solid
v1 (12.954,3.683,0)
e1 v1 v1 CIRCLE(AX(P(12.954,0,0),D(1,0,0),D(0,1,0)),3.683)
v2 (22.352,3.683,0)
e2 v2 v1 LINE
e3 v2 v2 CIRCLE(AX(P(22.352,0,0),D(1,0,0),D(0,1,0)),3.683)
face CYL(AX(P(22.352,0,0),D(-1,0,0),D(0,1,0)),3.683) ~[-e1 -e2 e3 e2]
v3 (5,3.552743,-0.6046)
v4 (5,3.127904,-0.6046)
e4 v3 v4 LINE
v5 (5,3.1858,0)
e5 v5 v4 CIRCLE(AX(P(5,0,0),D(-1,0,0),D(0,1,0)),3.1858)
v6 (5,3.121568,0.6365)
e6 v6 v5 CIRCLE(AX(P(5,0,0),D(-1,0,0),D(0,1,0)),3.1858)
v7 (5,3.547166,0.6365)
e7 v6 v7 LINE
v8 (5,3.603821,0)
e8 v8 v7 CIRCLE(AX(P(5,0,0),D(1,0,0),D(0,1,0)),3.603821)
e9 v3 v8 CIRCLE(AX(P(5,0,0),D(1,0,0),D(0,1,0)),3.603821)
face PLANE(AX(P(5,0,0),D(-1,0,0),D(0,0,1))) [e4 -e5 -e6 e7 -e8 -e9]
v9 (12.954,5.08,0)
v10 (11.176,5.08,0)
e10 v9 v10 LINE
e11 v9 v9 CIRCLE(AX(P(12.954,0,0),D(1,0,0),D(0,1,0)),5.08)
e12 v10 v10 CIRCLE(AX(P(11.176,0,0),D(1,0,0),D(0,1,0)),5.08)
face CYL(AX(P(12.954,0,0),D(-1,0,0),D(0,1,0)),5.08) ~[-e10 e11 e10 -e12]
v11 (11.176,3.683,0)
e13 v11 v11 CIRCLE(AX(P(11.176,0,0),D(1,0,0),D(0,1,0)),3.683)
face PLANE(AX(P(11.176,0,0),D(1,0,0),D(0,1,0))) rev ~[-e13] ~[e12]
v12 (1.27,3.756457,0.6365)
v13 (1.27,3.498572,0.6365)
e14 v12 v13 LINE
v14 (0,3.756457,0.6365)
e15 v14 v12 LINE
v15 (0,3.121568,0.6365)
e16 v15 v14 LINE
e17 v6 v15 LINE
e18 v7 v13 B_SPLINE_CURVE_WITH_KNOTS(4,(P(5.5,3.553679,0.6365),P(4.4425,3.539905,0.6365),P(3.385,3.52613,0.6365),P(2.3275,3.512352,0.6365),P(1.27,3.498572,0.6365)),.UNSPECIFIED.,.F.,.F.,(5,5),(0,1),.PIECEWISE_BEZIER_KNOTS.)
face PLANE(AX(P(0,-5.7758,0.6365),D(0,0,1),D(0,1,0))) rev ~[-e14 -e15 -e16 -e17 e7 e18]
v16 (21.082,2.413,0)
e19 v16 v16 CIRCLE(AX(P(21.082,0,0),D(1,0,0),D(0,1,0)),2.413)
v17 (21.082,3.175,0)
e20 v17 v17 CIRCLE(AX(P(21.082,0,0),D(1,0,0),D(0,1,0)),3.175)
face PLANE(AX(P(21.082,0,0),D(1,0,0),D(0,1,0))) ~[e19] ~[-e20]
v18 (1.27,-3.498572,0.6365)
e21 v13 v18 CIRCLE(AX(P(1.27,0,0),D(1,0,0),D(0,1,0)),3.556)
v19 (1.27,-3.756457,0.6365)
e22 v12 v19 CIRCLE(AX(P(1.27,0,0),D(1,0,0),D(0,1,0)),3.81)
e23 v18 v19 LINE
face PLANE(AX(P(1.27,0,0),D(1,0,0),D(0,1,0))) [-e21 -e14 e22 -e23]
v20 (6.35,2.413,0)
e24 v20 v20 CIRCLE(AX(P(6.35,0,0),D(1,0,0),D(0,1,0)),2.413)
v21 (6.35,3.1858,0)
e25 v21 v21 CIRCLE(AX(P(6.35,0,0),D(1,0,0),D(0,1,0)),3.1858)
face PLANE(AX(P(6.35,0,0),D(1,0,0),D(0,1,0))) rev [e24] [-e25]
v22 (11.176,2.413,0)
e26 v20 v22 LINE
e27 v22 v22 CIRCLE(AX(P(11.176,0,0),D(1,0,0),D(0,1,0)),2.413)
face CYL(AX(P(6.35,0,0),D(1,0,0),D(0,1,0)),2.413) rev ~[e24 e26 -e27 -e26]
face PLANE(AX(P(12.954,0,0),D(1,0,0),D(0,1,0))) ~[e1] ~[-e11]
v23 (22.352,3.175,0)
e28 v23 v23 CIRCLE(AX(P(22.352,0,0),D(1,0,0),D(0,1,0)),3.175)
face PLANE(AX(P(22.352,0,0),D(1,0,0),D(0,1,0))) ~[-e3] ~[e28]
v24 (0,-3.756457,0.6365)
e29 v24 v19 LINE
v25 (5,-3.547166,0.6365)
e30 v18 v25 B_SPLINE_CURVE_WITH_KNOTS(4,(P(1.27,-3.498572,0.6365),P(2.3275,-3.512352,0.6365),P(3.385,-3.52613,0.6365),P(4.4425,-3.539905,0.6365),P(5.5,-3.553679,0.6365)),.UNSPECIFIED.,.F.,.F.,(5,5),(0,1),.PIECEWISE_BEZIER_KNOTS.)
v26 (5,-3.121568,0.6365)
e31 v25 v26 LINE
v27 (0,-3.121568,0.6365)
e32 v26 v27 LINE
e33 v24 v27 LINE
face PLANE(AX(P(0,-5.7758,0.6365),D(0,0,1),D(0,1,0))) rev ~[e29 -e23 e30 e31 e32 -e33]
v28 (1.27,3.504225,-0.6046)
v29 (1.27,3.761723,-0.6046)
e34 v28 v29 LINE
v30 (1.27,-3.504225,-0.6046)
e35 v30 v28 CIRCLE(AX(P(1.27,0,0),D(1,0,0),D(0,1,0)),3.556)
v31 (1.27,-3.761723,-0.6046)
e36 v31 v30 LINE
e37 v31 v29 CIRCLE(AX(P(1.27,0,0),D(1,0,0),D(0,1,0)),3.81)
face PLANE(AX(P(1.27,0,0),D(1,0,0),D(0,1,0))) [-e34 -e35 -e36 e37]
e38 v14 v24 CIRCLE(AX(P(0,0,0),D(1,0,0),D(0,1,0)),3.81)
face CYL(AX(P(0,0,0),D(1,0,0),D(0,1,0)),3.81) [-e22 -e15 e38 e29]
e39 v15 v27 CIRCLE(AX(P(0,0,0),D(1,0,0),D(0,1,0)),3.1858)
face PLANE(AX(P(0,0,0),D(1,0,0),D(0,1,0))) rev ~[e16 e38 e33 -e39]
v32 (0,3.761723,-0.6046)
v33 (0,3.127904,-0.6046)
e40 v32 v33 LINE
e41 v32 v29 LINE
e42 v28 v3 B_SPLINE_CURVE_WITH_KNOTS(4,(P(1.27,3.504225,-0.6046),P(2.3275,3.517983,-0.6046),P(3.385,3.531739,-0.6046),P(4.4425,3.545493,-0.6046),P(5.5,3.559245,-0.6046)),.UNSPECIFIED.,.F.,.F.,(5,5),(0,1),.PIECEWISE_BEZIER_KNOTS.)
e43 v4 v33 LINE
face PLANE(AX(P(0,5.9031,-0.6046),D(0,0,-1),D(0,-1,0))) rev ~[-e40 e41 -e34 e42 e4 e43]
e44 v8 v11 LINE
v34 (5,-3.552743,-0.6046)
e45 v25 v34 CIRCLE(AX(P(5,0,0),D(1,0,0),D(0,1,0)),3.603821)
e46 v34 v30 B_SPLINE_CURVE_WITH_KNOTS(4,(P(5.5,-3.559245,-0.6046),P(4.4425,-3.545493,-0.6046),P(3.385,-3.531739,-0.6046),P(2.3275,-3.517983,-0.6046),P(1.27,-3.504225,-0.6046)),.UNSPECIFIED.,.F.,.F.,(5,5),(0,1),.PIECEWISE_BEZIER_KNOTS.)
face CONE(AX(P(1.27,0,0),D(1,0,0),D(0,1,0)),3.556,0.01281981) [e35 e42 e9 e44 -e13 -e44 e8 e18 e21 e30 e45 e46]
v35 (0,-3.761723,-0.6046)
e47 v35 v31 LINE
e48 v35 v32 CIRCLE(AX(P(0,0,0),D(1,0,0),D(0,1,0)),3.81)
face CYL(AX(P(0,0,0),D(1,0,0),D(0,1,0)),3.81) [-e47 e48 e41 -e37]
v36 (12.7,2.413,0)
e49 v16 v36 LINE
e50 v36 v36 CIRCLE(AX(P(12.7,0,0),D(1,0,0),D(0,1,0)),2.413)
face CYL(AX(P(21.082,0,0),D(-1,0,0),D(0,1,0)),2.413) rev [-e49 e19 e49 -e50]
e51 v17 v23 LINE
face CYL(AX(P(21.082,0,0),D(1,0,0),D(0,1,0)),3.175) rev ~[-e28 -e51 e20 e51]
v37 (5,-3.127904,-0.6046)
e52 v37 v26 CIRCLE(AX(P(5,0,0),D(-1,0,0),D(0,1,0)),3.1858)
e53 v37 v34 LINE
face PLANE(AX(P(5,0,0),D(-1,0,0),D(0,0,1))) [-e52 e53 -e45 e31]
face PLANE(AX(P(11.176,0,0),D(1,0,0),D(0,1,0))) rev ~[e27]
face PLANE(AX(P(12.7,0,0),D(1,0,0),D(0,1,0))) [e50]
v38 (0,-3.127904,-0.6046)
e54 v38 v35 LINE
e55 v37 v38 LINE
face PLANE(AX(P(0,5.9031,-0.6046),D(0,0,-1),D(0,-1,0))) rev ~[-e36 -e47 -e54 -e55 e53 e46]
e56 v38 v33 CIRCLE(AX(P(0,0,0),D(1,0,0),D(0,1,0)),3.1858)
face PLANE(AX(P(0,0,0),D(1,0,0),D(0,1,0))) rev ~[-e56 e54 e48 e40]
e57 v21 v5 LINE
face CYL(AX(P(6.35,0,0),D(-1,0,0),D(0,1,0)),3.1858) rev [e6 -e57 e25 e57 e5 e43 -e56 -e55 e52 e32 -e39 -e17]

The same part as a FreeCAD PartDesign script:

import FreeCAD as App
import Part
import Sketcher
from FreeCAD import Vector
Q = App.Units.Quantity

doc = App.newDocument("Part")
body = doc.addObject("PartDesign::Body", "Body")

sketch1 = body.newObject("Sketcher::SketchObject", "Sketch")
sketch1.AttachmentSupport = (doc.getObject("XY_Plane"), [""])
sketch1.MapMode = "FlatFace"
sketch1.addGeometry([
    Part.LineSegment(Vector(1.27, 3.81, 0), Vector(0, 3.81, 0)),
    Part.LineSegment(Vector(0, 3.81, 0), Vector(0, 3.19, 0)),
    Part.LineSegment(Vector(0, 3.19, 0), Vector(6.35, 3.19, 0)),
    Part.LineSegment(Vector(6.35, 3.19, 0), Vector(6.35, 2.41, 0)),
    Part.LineSegment(Vector(6.35, 2.41, 0), Vector(11.18, 2.41, 0)),
    Part.LineSegment(Vector(11.18, 2.41, 0), Vector(11.18, 0, 0)),
    Part.LineSegment(Vector(11.18, 0, 0), Vector(12.7, 0, 0)),
    Part.LineSegment(Vector(12.7, 0, 0), Vector(12.7, 2.41, 0)),
    Part.LineSegment(Vector(12.7, 2.41, 0), Vector(21.08, 2.41, 0)),
    Part.LineSegment(Vector(21.08, 2.41, 0), Vector(21.08, 3.17, 0)),
    Part.LineSegment(Vector(21.08, 3.17, 0), Vector(22.35, 3.17, 0)),
    Part.LineSegment(Vector(22.35, 3.17, 0), Vector(22.35, 3.68, 0)),
    Part.LineSegment(Vector(22.35, 3.68, 0), Vector(12.95, 3.68, 0)),
    Part.LineSegment(Vector(12.95, 3.68, 0), Vector(12.95, 5.08, 0)),
    Part.LineSegment(Vector(12.95, 5.08, 0), Vector(11.18, 5.08, 0)),
    Part.LineSegment(Vector(11.18, 5.08, 0), Vector(11.18, 3.68, 0)),
    Part.LineSegment(Vector(11.18, 3.68, 0), Vector(1.27, 3.56, 0)),
    Part.LineSegment(Vector(1.27, 3.56, 0), Vector(1.27, 3.81, 0)),
], False)
sketch1.addConstraint([
    Sketcher.Constraint("Coincident", 0, 2, 1, 1),
    Sketcher.Constraint("Coincident", 1, 2, 2, 1),
    Sketcher.Constraint("Coincident", 2, 2, 3, 1),
    Sketcher.Constraint("Coincident", 3, 2, 4, 1),
    Sketcher.Constraint("Coincident", 4, 2, 5, 1),
    Sketcher.Constraint("Coincident", 5, 2, 6, 1),
    Sketcher.Constraint("Coincident", 6, 2, 7, 1),
    Sketcher.Constraint("Coincident", 7, 2, 8, 1),
    Sketcher.Constraint("Coincident", 8, 2, 9, 1),
    Sketcher.Constraint("Coincident", 9, 2, 10, 1),
    Sketcher.Constraint("Coincident", 10, 2, 11, 1),
    Sketcher.Constraint("Coincident", 11, 2, 12, 1),
    Sketcher.Constraint("Coincident", 12, 2, 13, 1),
    Sketcher.Constraint("Coincident", 13, 2, 14, 1),
    Sketcher.Constraint("Coincident", 14, 2, 15, 1),
    Sketcher.Constraint("Coincident", 15, 2, 16, 1),
    Sketcher.Constraint("Coincident", 16, 2, 17, 1),
    Sketcher.Constraint("Coincident", 17, 2, 0, 1),
    Sketcher.Constraint("Horizontal", 0),
    Sketcher.Constraint("Vertical", 1),
    Sketcher.Constraint("Horizontal", 2),
    Sketcher.Constraint("Vertical", 3),
    Sketcher.Constraint("Horizontal", 4),
    Sketcher.Constraint("Vertical", 5),
    Sketcher.Constraint("Horizontal", 6),
    Sketcher.Constraint("Vertical", 7),
    Sketcher.Constraint("Horizontal", 8),
    Sketcher.Constraint("Vertical", 9),
    Sketcher.Constraint("Horizontal", 10),
    Sketcher.Constraint("Vertical", 11),
    Sketcher.Constraint("Horizontal", 12),
    Sketcher.Constraint("Vertical", 13),
    Sketcher.Constraint("Horizontal", 14),
    Sketcher.Constraint("Vertical", 15),
    Sketcher.Constraint("Vertical", 17),
    Sketcher.Constraint("PointOnObject", 0, 2, -2),
    Sketcher.Constraint("PointOnObject", 5, 2, -1),
    Sketcher.Constraint("Horizontal", 4, 2, 7, 2),
    Sketcher.Constraint("Horizontal", 12, 2, 15, 2),
    Sketcher.Constraint("Vertical", 5, 2, 14, 2),
    Sketcher.Constraint("Equal", 0, 10),
    Sketcher.Constraint("DistanceX", 0, 2, 0, 1, Q("0.05 in")),
    Sketcher.Constraint("DistanceX", 2, 1, 2, 2, Q("0.25 in")),
    Sketcher.Constraint("DistanceX", 4, 1, 4, 2, Q("0.19 in")),
    Sketcher.Constraint("DistanceX", 8, 1, 8, 2, Q("0.33 in")),
    Sketcher.Constraint("DistanceX", 14, 2, 14, 1, Q("0.07 in")),
    Sketcher.Constraint("DistanceY", 17, 1, 17, 2, Q("0.01 in")),
    Sketcher.Constraint("DistanceY", -1, 1, 13, 2, Q("0.2 in")),
    Sketcher.Constraint("DistanceY", 5, 2, 5, 1, Q("0.095 in")),
    Sketcher.Constraint("DistanceY", -1, 1, 0, 2, Q("0.15 in")),
    Sketcher.Constraint("DistanceX", -1, 1, 10, 2, Q("0.88 in")),
    Sketcher.Constraint("DistanceY", 8, 2, 11, 2, Q("0.05 in")),
    Sketcher.Constraint("DistanceY", -1, 1, 9, 2, Q("0.125 in")),
    Sketcher.Constraint("DistanceY", -1, 1, 1, 2, 3.1858),
])
revolution = body.newObject("PartDesign::Revolution", "Revolution")
revolution.Profile = sketch1
revolution.ReferenceAxis = (sketch1, ["H_Axis"])
revolution.Angle = 360

sketch2 = body.newObject("Sketcher::SketchObject", "Sketch001")
sketch2.AttachmentSupport = (doc.getObject("YZ_Plane"), [""])
sketch2.MapMode = "FlatFace"
sketch2.addGeometry([
    Part.LineSegment(Vector(5.9, -0.6, 0), Vector(-5.8, -0.6, 0)),
    Part.LineSegment(Vector(-5.8, -0.6, 0), Vector(-5.8, 0.6, 0)),
    Part.LineSegment(Vector(-5.8, 0.6, 0), Vector(5.9, 0.6, 0)),
    Part.LineSegment(Vector(5.9, 0.6, 0), Vector(5.9, -0.6, 0)),
], False)
sketch2.addConstraint([
    Sketcher.Constraint("Coincident", 0, 2, 1, 1),
    Sketcher.Constraint("Coincident", 1, 2, 2, 1),
    Sketcher.Constraint("Coincident", 2, 2, 3, 1),
    Sketcher.Constraint("Coincident", 3, 2, 0, 1),
    Sketcher.Constraint("Horizontal", 0),
    Sketcher.Constraint("Vertical", 1),
    Sketcher.Constraint("Horizontal", 2),
    Sketcher.Constraint("Vertical", 3),
    Sketcher.Constraint("DistanceX", 0, 2, 0, 1, Q("0.4598 in")),
    Sketcher.Constraint("DistanceY", 1, 1, 1, 2, 1.241),
    Sketcher.Constraint("DistanceX", 0, 2, -1, 1, Q("0.2274 in")),
    Sketcher.Constraint("DistanceY", 0, 2, -1, 1, Q("0.0238 in")),
])
pocket1 = body.newObject("PartDesign::Pocket", "Pocket")
pocket1.Profile = sketch2
pocket1.Length = 5
pocket1.Reversed = True

doc.recompute()
